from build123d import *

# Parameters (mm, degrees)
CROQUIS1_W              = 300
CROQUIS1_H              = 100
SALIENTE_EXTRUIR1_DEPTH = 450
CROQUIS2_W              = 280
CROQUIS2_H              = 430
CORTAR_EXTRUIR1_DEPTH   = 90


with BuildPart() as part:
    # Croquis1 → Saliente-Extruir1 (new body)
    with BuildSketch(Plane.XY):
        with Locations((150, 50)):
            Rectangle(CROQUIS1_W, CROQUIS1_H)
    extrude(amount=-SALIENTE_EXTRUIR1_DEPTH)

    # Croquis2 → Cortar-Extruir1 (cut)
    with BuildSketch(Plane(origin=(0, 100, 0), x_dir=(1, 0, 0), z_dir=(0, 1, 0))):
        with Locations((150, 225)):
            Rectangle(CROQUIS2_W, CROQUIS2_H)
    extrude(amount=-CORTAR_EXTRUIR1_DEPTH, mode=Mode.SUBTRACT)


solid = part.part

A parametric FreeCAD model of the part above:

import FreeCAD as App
import Part
import Sketcher
from FreeCAD import Vector
Q = App.Units.Quantity


def add_polygon(sketch, points):
    """Adds a closed chain of lines whose ends are joined by coincident constraints."""
    first, n = sketch.GeometryCount, len(points)
    for a, b in zip(points, points[1:] + points[:1]):
        sketch.addGeometry(Part.LineSegment(App.Vector(*a, 0), App.Vector(*b, 0)), False)
    for i in range(n):
        sketch.addConstraint(Sketcher.Constraint("Coincident", first + i, 2, first + (i + 1) % n, 1))

doc = App.newDocument("Part")
body = doc.addObject("PartDesign::Body", "Body")

# Sketch on XY plane
sketch1 = body.newObject("Sketcher::SketchObject", "Sketch")
sketch1.AttachmentSupport = (doc.getObject("XY_Plane"), [""])
sketch1.MapMode = "FlatFace"
add_polygon(sketch1, [(0, 100), (0, 0), (300, 0), (300, 100)])  # lines 0-3
sketch1.addConstraint([
    Sketcher.Constraint("Vertical", 0),
    Sketcher.Constraint("Horizontal", 1),
    Sketcher.Constraint("Vertical", 2),
    Sketcher.Constraint("Horizontal", 3),
    Sketcher.Constraint("Coincident", 0, 2, -1, 1),
    Sketcher.Constraint("DistanceX", 1, 1, 1, 2, Q("300 mm")),
    Sketcher.Constraint("DistanceY", 0, 2, 0, 1, Q("100 mm")),
])
pad1 = body.newObject("PartDesign::Pad", "Pad")
pad1.Profile = sketch1
pad1.Length = 450
pad1.Reversed = True

# Sketch on XZ plane
sketch2 = body.newObject("Sketcher::SketchObject", "Sketch001")
sketch2.AttachmentSupport = (doc.getObject("XZ_Plane"), [""])
sketch2.MapMode = "FlatFace"
sketch2.AttachmentOffset = App.Placement(Vector(0, 0, -100), App.Rotation())
add_polygon(sketch2, [(10, -440), (10, -10), (290, -10), (290, -440)])  # lines 0-3
sketch2.addConstraint([
    Sketcher.Constraint("Vertical", 0),
    Sketcher.Constraint("Horizontal", 1),
    Sketcher.Constraint("Vertical", 2),
    Sketcher.Constraint("Horizontal", 3),
    Sketcher.Constraint("DistanceX", 1, 1, 1, 2, Q("280 mm")),
    Sketcher.Constraint("DistanceY", 0, 1, 0, 2, Q("430 mm")),
    Sketcher.Constraint("DistanceX", -1, 1, 0, 2, Q("10 mm")),
    Sketcher.Constraint("DistanceY", 0, 2, -1, 1, Q("10 mm")),
])
pocket1 = body.newObject("PartDesign::Pocket", "Pocket")
pocket1.Profile = sketch2
pocket1.Length = 90
pocket1.Reversed = True

doc.recompute()
